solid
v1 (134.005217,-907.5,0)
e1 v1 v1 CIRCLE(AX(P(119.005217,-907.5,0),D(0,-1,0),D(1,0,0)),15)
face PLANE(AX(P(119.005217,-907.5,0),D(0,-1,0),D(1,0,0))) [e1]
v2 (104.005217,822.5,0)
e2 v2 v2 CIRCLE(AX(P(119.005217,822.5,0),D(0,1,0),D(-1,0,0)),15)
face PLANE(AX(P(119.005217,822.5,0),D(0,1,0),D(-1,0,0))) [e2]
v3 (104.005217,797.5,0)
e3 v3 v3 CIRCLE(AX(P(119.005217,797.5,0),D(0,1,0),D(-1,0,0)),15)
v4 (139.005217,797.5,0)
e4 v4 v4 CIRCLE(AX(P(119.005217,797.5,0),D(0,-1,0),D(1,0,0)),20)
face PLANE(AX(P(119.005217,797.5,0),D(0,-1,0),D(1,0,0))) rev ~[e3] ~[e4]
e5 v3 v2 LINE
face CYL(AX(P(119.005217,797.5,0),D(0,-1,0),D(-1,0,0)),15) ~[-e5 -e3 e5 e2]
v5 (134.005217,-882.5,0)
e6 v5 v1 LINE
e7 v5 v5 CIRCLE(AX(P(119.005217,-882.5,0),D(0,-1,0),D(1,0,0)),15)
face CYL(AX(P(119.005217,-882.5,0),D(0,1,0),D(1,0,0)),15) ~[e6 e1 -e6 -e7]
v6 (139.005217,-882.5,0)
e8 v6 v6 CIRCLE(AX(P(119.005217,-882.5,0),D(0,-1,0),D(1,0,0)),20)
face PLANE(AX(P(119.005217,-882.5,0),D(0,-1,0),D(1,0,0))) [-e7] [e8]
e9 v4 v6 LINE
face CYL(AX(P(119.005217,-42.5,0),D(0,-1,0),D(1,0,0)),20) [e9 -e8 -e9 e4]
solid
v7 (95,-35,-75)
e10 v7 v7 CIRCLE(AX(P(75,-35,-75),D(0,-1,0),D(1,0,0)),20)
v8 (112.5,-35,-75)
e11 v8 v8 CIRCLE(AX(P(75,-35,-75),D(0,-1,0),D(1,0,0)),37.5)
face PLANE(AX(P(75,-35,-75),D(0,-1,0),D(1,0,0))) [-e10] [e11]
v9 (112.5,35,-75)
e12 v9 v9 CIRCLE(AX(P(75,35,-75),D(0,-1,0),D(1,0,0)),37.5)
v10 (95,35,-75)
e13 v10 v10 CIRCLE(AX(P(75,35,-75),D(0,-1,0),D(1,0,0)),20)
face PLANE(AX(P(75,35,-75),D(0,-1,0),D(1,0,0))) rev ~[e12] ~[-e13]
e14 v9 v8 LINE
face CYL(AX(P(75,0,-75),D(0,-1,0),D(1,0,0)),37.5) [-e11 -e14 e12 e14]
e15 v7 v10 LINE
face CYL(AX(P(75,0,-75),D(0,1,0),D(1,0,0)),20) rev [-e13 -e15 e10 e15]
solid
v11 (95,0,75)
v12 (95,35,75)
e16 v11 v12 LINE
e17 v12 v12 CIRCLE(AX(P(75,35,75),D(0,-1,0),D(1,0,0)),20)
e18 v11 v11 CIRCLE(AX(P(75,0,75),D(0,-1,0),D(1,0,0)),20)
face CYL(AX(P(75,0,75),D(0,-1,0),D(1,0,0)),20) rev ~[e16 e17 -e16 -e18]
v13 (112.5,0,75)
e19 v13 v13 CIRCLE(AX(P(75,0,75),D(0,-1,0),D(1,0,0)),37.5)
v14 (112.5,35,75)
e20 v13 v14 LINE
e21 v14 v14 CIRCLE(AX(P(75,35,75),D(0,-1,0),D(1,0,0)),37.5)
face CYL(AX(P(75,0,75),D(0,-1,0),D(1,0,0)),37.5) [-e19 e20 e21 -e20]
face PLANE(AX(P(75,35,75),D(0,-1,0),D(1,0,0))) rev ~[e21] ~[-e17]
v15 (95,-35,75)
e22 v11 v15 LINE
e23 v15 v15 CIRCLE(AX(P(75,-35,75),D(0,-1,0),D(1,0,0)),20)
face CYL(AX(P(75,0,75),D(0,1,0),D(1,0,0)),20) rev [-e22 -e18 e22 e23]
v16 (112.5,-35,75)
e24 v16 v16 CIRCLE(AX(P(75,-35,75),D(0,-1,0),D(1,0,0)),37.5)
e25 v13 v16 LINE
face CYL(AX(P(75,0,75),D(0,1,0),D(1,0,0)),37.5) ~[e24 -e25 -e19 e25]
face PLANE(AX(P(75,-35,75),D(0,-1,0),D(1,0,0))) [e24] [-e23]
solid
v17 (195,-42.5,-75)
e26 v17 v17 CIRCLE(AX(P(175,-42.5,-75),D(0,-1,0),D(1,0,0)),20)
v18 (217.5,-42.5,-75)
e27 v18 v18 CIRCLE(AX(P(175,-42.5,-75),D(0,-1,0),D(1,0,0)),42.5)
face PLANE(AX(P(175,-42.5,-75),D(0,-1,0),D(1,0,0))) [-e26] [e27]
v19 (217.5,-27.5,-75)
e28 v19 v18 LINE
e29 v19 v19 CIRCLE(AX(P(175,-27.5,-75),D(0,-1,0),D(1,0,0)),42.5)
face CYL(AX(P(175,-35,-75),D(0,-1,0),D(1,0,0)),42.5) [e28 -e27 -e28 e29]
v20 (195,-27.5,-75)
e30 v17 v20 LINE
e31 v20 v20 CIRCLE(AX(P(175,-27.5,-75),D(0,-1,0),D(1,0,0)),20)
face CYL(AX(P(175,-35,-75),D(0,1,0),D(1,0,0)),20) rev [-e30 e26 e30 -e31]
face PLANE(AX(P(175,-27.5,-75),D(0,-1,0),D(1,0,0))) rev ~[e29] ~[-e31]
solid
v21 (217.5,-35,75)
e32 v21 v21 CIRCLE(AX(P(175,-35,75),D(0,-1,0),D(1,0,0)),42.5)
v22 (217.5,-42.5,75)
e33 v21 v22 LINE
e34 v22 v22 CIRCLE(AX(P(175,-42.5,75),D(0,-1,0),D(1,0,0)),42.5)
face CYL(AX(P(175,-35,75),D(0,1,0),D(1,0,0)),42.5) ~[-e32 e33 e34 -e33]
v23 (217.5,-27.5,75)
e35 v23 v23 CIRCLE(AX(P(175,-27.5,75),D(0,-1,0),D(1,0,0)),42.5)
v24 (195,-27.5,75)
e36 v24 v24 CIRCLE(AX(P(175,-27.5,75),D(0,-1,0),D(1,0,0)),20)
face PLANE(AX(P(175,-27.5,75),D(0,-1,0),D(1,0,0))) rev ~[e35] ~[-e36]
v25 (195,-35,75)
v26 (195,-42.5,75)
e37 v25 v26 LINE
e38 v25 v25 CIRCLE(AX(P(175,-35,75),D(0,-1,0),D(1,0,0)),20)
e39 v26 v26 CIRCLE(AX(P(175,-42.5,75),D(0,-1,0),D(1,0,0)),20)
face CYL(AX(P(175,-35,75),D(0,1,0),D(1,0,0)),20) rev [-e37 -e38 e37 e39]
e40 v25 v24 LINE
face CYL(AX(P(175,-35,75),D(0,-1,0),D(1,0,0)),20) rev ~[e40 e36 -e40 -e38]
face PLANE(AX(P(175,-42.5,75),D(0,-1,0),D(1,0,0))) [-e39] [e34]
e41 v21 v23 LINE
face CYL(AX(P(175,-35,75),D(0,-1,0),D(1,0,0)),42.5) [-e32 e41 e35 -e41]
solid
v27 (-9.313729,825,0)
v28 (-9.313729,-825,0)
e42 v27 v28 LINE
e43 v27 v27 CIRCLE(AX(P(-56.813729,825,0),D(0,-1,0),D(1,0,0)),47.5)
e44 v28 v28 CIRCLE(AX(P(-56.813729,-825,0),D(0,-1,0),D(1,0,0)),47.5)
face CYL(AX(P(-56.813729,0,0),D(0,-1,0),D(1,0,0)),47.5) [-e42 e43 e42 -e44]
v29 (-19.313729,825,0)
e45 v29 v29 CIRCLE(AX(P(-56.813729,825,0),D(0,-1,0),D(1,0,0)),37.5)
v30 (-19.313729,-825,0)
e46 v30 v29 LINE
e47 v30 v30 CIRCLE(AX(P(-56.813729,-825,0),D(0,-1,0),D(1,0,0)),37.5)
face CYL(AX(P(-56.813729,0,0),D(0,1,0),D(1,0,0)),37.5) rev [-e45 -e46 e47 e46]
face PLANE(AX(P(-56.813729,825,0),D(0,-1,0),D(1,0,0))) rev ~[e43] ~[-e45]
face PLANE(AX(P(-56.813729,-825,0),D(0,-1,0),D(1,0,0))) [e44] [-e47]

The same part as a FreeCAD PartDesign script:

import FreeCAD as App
import Part
import Sketcher
from FreeCAD import Vector
Q = App.Units.Quantity

doc = App.newDocument("Part")
params = doc.addObject("Spreadsheet::Sheet", "Params")
for row, (alias, value) in enumerate([
    ("sketch1_diameter", "95 mm"),
    ("sketch1_diameter2", "75 mm"),
    ("pad1_length", "1650 mm"),
    ("sketch2_diameter", "75 mm"),
    ("sketch2_diameter2", "40 mm"),
    ("pad2_length", "70 mm"),
    ("sketch3_diameter", "85 mm"),
    ("sketch3_diameter2", "40 mm"),
    ("pad3_length", "15 mm"),
    ("sketch4_diameter", "40 mm"),
    ("pad4_length", "1680 mm"),
    ("sketch5_diameter", "30 mm"),
    ("pad5_length", "25 mm"),
    ("sketch6_diameter", "30 mm"),
    ("pad6_length", "25 mm"),
], start=1):
    params.set(f"A{row}", alias)
    params.set(f"B{row}", "=" + value)
    params.setAlias(f"B{row}", alias)

body = doc.addObject("PartDesign::Body", "Body")

sketch1 = doc.addObject("Sketcher::SketchObject", "Sketch")
body.addObject(sketch1)
sketch1.AttachmentSupport = (doc.XZ_Plane, [""])
sketch1.MapMode = "FlatFace"
sketch1.addGeometry([
    Part.Circle(Vector(-57, 0, 0), Vector(0, 0, 1), 48),
    Part.Circle(Vector(-57, 0, 0), Vector(0, 0, 1), 38),
], False)
sketch1.addConstraint([
    Sketcher.Constraint("Coincident", 1, 3, 0, 3),
    Sketcher.Constraint("PointOnObject", 0, 3, -1),
    Sketcher.Constraint("Diameter", 0, Q("95 mm")),
    Sketcher.Constraint("Diameter", 1, Q("75 mm")),
    Sketcher.Constraint("DistanceX", 0, 3, -1, 1, Q("56.813729 mm")),
])
sketch1.setExpression("Constraints[2]", "Params.sketch1_diameter")
sketch1.setExpression("Constraints[3]", "Params.sketch1_diameter2")
pad1 = doc.addObject("PartDesign::Pad", "Pad")
body.addObject(pad1)
pad1.Profile = sketch1
pad1.setExpression("Length", "Params.pad1_length")
pad1.Midplane = True
body2 = doc.addObject("PartDesign::Body", "Body001")
body2.AllowCompound = True

sketch2 = doc.addObject("Sketcher::SketchObject", "Sketch001")
body2.addObject(sketch2)
sketch2.AttachmentSupport = (doc.getObject("XZ_Plane001"), [""])
sketch2.MapMode = "FlatFace"
sketch2.addGeometry([
    Part.Circle(Vector(75, 75, 0), Vector(0, 0, 1), 38),
    Part.Circle(Vector(75, 75, 0), Vector(0, 0, 1), 20),
    Part.Circle(Vector(75, -75, 0), Vector(0, 0, 1), 38),
    Part.Circle(Vector(75, -75, 0), Vector(0, 0, 1), 20),
], False)
sketch2.addConstraint([
    Sketcher.Constraint("Coincident", 1, 3, 0, 3),
    Sketcher.Constraint("Coincident", 3, 3, 2, 3),
    Sketcher.Constraint("Equal", 0, 2),
    Sketcher.Constraint("Equal", 1, 3),
    Sketcher.Constraint("Symmetric", 0, 3, 2, 3, -1),
    Sketcher.Constraint("Diameter", 0, Q("75 mm")),
    Sketcher.Constraint("Diameter", 1, Q("40 mm")),
    Sketcher.Constraint("DistanceX", -1, 1, 0, 3, Q("75 mm")),
    Sketcher.Constraint("DistanceY", -1, 1, 0, 3, Q("75 mm")),
])
sketch2.setExpression("Constraints[5]", "Params.sketch2_diameter")
sketch2.setExpression("Constraints[6]", "Params.sketch2_diameter2")
pad2 = doc.addObject("PartDesign::Pad", "Pad001")
body2.addObject(pad2)
pad2.Profile = sketch2
pad2.setExpression("Length", "Params.pad2_length")
pad2.Midplane = True
body3 = doc.addObject("PartDesign::Body", "Body002")
body3.AllowCompound = True

sketch3 = doc.addObject("Sketcher::SketchObject", "Sketch002")
body3.addObject(sketch3)
sketch3.AttachmentSupport = (doc.getObject("XZ_Plane002"), [""])
sketch3.MapMode = "FlatFace"
sketch3.AttachmentOffset = App.Placement(Vector(0, 0, 35), App.Rotation())
sketch3.addGeometry([
    Part.Circle(Vector(175, 75, 0), Vector(0, 0, 1), 42),
    Part.Circle(Vector(175, 75, 0), Vector(0, 0, 1), 20),
    Part.Circle(Vector(175, -75, 0), Vector(0, 0, 1), 42),
    Part.Circle(Vector(175, -75, 0), Vector(0, 0, 1), 20),
], False)
sketch3.addConstraint([
    Sketcher.Constraint("Coincident", 1, 3, 0, 3),
    Sketcher.Constraint("Coincident", 3, 3, 2, 3),
    Sketcher.Constraint("Equal", 0, 2),
    Sketcher.Constraint("Equal", 1, 3),
    Sketcher.Constraint("Symmetric", 0, 3, 2, 3, -1),
    Sketcher.Constraint("Diameter", 0, Q("85 mm")),
    Sketcher.Constraint("Diameter", 1, Q("40 mm")),
    Sketcher.Constraint("DistanceX", -1, 1, 0, 3, Q("175 mm")),
    Sketcher.Constraint("DistanceY", -1, 1, 0, 3, Q("75 mm")),
])
sketch3.setExpression("Constraints[5]", "Params.sketch3_diameter")
sketch3.setExpression("Constraints[6]", "Params.sketch3_diameter2")
pad3 = doc.addObject("PartDesign::Pad", "Pad002")
body3.addObject(pad3)
pad3.Profile = sketch3
pad3.setExpression("Length", "Params.pad3_length")
pad3.Midplane = True
body4 = doc.addObject("PartDesign::Body", "Body003")

sketch4 = doc.addObject("Sketcher::SketchObject", "Sketch003")
body4.addObject(sketch4)
sketch4.AttachmentSupport = (doc.getObject("XZ_Plane003"), [""])
sketch4.MapMode = "FlatFace"
sketch4.AttachmentOffset = App.Placement(Vector(0, 0, 42.5), App.Rotation())
sketch4.addGeometry(Part.Circle(Vector(119, 0, 0), Vector(0, 0, 1), 20), False)
sketch4.addConstraint([
    Sketcher.Constraint("PointOnObject", 0, 3, -1),
    Sketcher.Constraint("Diameter", 0, Q("40 mm")),
    Sketcher.Constraint("DistanceX", -1, 1, 0, 3, Q("119.005217 mm")),
])
sketch4.setExpression("Constraints[1]", "Params.sketch4_diameter")
pad4 = doc.addObject("PartDesign::Pad", "Pad003")
body4.addObject(pad4)
pad4.Profile = sketch4
pad4.setExpression("Length", "Params.pad4_length")
pad4.Midplane = True

sketch5 = doc.addObject("Sketcher::SketchObject", "Sketch004")
body4.addObject(sketch5)
sketch5.AttachmentSupport = (doc.getObject("XZ_Plane003"), [""])
sketch5.MapMode = "FlatFace"
sketch5.AttachmentOffset = App.Placement(Vector(0, 0, 882.5), App.Rotation())
sketch5.addGeometry(Part.Circle(Vector(119, 0, 0), Vector(0, 0, 1), 15), False)
sketch5.addConstraint([
    Sketcher.Constraint("PointOnObject", 0, 3, -1),
    Sketcher.Constraint("Diameter", 0, Q("30 mm")),
    Sketcher.Constraint("DistanceX", -1, 1, 0, 3, Q("119.005217 mm")),
])
sketch5.setExpression("Constraints[1]", "Params.sketch5_diameter")
pad5 = doc.addObject("PartDesign::Pad", "Pad004")
body4.addObject(pad5)
pad5.Profile = sketch5
pad5.setExpression("Length", "Params.pad5_length")

sketch6 = doc.addObject("Sketcher::SketchObject", "Sketch005")
body4.addObject(sketch6)
sketch6.AttachmentSupport = (doc.getObject("XZ_Plane003"), [""])
sketch6.MapMode = "FlatFace"
sketch6.AttachmentOffset = App.Placement(Vector(0, 0, -797.5), App.Rotation())
sketch6.addGeometry(Part.Circle(Vector(119, 0, 0), Vector(0, 0, 1), 15), False)
sketch6.addConstraint([
    Sketcher.Constraint("PointOnObject", 0, 3, -1),
    Sketcher.Constraint("Diameter", 0, Q("30 mm")),
    Sketcher.Constraint("DistanceX", -1, 1, 0, 3, Q("119.005217 mm")),
])
sketch6.setExpression("Constraints[1]", "Params.sketch6_diameter")
pad6 = doc.addObject("PartDesign::Pad", "Pad005")
body4.addObject(pad6)
pad6.Profile = sketch6
pad6.setExpression("Length", "Params.pad6_length")
pad6.Reversed = True

doc.recompute()
